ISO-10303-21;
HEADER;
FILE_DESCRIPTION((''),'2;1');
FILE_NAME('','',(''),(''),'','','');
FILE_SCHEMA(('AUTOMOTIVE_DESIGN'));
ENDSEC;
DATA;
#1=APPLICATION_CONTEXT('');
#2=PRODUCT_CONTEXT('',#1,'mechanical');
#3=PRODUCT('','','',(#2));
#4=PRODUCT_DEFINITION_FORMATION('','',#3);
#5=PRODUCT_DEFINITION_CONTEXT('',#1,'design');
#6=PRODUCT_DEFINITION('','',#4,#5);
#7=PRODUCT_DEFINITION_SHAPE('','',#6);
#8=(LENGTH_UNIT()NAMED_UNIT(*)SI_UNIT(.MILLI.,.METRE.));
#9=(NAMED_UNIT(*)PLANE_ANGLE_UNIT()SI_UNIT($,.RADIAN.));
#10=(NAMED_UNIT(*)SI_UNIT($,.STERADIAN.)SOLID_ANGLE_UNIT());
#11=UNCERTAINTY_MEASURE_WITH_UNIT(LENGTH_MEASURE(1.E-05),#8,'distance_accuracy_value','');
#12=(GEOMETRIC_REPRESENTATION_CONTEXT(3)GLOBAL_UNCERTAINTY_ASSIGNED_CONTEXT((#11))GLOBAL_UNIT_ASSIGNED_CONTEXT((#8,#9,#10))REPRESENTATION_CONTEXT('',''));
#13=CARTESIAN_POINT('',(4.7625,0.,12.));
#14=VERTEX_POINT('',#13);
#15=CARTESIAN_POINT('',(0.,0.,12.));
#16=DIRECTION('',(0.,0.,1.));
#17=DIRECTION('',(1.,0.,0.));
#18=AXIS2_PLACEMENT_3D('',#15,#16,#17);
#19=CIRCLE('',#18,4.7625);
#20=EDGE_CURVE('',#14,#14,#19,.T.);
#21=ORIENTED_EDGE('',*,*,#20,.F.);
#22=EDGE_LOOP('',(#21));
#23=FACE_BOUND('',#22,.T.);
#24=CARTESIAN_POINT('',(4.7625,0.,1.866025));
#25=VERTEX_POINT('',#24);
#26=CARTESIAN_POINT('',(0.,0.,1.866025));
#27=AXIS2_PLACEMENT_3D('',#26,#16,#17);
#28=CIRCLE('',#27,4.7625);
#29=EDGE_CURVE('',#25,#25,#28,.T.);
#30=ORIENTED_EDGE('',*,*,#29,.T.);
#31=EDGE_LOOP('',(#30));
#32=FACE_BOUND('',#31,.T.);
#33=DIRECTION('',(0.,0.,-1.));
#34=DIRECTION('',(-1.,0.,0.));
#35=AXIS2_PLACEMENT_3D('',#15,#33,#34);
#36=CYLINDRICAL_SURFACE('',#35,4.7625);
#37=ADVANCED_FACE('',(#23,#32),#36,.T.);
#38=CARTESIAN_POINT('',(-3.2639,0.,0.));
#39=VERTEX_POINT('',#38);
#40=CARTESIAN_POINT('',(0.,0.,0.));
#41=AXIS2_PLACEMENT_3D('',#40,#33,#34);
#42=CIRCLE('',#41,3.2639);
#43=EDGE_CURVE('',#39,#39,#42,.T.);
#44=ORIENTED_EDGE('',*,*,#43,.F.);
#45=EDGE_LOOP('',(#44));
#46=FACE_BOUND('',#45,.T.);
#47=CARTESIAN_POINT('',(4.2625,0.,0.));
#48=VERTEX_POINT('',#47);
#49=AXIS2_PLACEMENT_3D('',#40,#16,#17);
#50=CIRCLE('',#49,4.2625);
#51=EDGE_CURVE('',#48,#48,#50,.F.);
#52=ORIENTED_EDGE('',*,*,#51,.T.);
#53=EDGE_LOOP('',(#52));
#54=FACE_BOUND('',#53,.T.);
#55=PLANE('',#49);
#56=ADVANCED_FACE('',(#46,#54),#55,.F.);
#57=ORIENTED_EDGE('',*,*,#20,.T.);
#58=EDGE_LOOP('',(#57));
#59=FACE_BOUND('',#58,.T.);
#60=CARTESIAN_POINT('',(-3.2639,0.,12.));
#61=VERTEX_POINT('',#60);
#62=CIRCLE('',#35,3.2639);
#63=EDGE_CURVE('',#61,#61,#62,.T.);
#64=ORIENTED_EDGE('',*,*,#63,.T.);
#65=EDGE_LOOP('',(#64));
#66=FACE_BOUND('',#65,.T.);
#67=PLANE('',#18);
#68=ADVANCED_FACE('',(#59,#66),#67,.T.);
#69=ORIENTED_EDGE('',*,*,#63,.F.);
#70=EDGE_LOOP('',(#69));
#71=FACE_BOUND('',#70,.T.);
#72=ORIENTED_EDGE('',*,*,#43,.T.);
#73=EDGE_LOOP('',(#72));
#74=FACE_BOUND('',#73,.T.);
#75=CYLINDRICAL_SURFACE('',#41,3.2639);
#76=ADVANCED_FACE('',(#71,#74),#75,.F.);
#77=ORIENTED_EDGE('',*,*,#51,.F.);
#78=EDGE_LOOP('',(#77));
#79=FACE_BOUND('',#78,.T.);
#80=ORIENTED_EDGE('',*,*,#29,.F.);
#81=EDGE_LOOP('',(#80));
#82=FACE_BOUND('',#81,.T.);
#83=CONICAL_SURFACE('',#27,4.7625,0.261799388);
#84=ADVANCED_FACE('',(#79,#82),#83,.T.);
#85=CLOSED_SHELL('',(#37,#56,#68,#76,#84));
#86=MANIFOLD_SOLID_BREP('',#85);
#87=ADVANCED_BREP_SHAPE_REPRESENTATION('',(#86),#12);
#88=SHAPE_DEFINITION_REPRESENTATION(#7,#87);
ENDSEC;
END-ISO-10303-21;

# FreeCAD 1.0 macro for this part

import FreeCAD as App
import Part
import Sketcher
from FreeCAD import Vector
Q = App.Units.Quantity


def edges_at(feature, points):
    """Names of the edges that pass closest to the given points."""
    edges = feature.Shape.Edges
    near = lambda p: min(range(len(edges)), key=lambda i: edges[i].distToShape(Part.Vertex(*p))[0])
    return sorted({f"Edge{near(p) + 1}" for p in points})

doc = App.newDocument("Part")
body = doc.addObject("PartDesign::Body", "Body")

# Sketch on XY plane
sketch1 = doc.addObject("Sketcher::SketchObject", "Sketch")
body.addObject(sketch1)
sketch1.AttachmentSupport = (doc.XY_Plane, [""])
sketch1.MapMode = "FlatFace"
sketch1.addGeometry(Part.Circle(Vector(0, 0, 0), Vector(0, 0, 1), 4.7625), False)
sketch1.addConstraint(Sketcher.Constraint("Coincident", 0, 3, -1, 1))
sketch1.addConstraint(Sketcher.Constraint("Diameter", 0, Q("9.525 mm")))
pad1 = doc.addObject("PartDesign::Pad", "Pad")
body.addObject(pad1)
pad1.Profile = sketch1
pad1.Length = 12
doc.recompute()

chamfer = doc.addObject("PartDesign::Chamfer", "Chamfer")
body.addObject(chamfer)
chamfer.Base = (pad1, edges_at(pad1, [(-4.763, 0, 0)]))
chamfer.ChamferType = "Two distances"
chamfer.Size = 0.5
chamfer.Size2 = 1.866025
chamfer.FlipDirection = True

# Sketch on XY plane
sketch2 = doc.addObject("Sketcher::SketchObject", "Sketch001")
body.addObject(sketch2)
sketch2.AttachmentSupport = (doc.XY_Plane, [""])
sketch2.MapMode = "FlatFace"
sketch2.addGeometry(Part.Circle(Vector(0, 0, 0), Vector(0, 0, 1), 3.2639), False)
sketch2.addConstraint(Sketcher.Constraint("Coincident", 0, 3, -1, 1))
sketch2.addConstraint(Sketcher.Constraint("Diameter", 0, Q("6.5278 mm")))
doc.recompute()
hole = doc.addObject("PartDesign::Hole", "Hole")
body.addObject(hole)
hole.Profile = sketch2
hole.ThreadType = "None"
hole.Diameter = 6.5278
hole.DepthType = "ThroughAll"
hole.Reversed = True

doc.recompute()
